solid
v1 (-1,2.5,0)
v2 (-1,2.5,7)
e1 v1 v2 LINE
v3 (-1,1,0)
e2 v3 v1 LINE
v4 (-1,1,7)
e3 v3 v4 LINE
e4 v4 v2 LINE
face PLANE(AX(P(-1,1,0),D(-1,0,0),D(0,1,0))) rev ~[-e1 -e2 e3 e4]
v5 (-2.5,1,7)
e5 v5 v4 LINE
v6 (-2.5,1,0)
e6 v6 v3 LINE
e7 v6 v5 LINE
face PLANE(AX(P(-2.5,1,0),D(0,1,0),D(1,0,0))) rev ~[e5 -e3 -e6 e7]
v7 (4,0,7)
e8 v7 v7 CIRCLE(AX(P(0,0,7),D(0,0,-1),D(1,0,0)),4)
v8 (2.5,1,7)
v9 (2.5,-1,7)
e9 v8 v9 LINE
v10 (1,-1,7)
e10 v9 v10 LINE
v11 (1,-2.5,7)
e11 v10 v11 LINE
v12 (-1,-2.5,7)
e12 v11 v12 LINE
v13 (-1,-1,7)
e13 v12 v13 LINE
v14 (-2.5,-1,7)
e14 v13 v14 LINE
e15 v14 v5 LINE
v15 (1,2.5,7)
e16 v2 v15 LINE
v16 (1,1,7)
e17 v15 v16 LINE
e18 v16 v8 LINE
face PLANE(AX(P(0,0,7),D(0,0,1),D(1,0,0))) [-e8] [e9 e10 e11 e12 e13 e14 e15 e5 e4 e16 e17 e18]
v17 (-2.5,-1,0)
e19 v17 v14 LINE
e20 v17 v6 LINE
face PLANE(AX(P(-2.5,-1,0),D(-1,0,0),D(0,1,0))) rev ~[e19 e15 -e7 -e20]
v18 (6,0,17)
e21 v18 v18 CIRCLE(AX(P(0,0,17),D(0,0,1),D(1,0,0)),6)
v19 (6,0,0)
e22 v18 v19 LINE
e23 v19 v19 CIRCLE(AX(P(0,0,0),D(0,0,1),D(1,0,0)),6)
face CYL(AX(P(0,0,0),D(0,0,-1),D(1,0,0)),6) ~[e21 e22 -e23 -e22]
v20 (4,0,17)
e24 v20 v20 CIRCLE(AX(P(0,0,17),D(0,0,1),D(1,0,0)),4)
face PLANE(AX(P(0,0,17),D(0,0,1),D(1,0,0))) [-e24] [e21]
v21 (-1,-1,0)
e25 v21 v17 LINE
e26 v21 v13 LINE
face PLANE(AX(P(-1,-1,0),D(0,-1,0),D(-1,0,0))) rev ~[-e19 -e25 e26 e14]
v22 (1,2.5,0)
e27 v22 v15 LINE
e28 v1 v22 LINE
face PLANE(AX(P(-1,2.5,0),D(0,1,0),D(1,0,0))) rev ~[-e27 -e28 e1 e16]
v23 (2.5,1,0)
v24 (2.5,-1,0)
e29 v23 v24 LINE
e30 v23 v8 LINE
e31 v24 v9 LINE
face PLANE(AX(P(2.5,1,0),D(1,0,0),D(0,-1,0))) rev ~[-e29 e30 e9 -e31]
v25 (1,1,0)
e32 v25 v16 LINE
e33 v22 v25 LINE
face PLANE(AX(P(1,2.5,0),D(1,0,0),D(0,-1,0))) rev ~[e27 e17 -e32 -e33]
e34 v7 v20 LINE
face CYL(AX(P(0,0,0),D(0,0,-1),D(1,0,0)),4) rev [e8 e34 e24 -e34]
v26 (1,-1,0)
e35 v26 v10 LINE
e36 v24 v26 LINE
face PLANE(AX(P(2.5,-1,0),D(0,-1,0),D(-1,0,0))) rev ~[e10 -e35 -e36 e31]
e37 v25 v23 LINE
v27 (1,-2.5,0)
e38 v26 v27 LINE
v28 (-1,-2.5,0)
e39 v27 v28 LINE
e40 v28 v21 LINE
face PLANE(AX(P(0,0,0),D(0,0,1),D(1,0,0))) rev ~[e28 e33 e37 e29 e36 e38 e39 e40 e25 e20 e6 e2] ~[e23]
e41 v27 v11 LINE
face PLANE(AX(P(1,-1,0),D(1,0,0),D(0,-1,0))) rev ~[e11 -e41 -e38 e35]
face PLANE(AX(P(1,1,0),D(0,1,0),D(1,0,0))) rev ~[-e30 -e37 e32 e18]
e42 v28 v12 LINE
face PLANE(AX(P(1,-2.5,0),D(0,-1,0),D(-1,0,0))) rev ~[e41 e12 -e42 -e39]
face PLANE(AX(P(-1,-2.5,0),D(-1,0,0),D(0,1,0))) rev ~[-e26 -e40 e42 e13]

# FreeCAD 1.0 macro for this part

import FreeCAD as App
import Part
import Sketcher
Q = App.Units.Quantity


def add_polygon(sketch, points):
    """Adds a closed chain of lines whose ends are joined by coincident constraints."""
    first, n = sketch.GeometryCount, len(points)
    for a, b in zip(points, points[1:] + points[:1]):
        sketch.addGeometry(Part.LineSegment(App.Vector(*a, 0), App.Vector(*b, 0)), False)
    for i in range(n):
        sketch.addConstraint(Sketcher.Constraint("Coincident", first + i, 2, first + (i + 1) % n, 1))

doc = App.newDocument("Part")
params = doc.addObject("Spreadsheet::Sheet", "Params")
for row, (alias, value) in enumerate([
    ("sketch1_diameter", "12 mm"),
    ("sketch1_width", "2 mm"),
    ("sketch1_width2", "1.5 mm"),
    ("pad1_length", "7 mm"),
    ("sketch2_diameter", "12 mm"),
    ("sketch2_diameter2", "8 mm"),
    ("pad2_length", "17 mm"),
], start=1):
    params.set(f"A{row}", alias)
    params.set(f"B{row}", "=" + value)
    params.setAlias(f"B{row}", alias)

body = doc.addObject("PartDesign::Body", "Body")

sketch1 = body.newObject("Sketcher::SketchObject", "Sketch")
sketch1.AttachmentSupport = (doc.getObject("XY_Plane"), [""])
sketch1.MapMode = "FlatFace"
sketch1.addGeometry(Part.Circle(App.Vector(0, 0, 0), App.Vector(0, 0, 1), 6), False)
add_polygon(sketch1, [(-1, 1), (-1, 2.5), (1, 2.5), (1, 1), (2.5, 1), (2.5, -1), (1, -1), (1, -2.5), (-1, -2.5), (-1, -1), (-2.5, -1), (-2.5, 1)])
sketch1.addConstraint(Sketcher.Constraint("Vertical", 1))
sketch1.addConstraint(Sketcher.Constraint("Horizontal", 2))
sketch1.addConstraint(Sketcher.Constraint("Vertical", 3))
sketch1.addConstraint(Sketcher.Constraint("Horizontal", 4))
sketch1.addConstraint(Sketcher.Constraint("Vertical", 5))
sketch1.addConstraint(Sketcher.Constraint("Horizontal", 6))
sketch1.addConstraint(Sketcher.Constraint("Vertical", 7))
sketch1.addConstraint(Sketcher.Constraint("Horizontal", 8))
sketch1.addConstraint(Sketcher.Constraint("Vertical", 9))
sketch1.addConstraint(Sketcher.Constraint("Horizontal", 10))
sketch1.addConstraint(Sketcher.Constraint("Vertical", 11))
sketch1.addConstraint(Sketcher.Constraint("Horizontal", 12))
sketch1.addConstraint(Sketcher.Constraint("Coincident", 0, 3, -1, 1))
sketch1.addConstraint(Sketcher.Constraint("Symmetric", 1, 2, 7, 2, -1, 1))
sketch1.addConstraint(Sketcher.Constraint("Symmetric", 3, 2, 9, 2, -1, 1))
sketch1.addConstraint(Sketcher.Constraint("Symmetric", 5, 2, 11, 2, -1, 1))
sketch1.addConstraint(Sketcher.Constraint("Symmetric", 6, 2, 9, 2, -2))
sketch1.addConstraint(Sketcher.Constraint("Equal", 12, 1))
sketch1.addConstraint(Sketcher.Constraint("Equal", 8, 5))
sketch1.addConstraint(Sketcher.Constraint("Diameter", 0, Q("12 mm")))
sketch1.addConstraint(Sketcher.Constraint("DistanceX", 2, 1, 2, 2, Q("2 mm")))
sketch1.addConstraint(Sketcher.Constraint("DistanceX", 4, 1, 4, 2, Q("1.5 mm")))
sketch1.setExpression("Constraints[31]", "Params.sketch1_diameter")
sketch1.setExpression("Constraints[32]", "Params.sketch1_width")
sketch1.setExpression("Constraints[33]", "Params.sketch1_width2")
pad1 = body.newObject("PartDesign::Pad", "Pad")
pad1.Profile = sketch1
pad1.setExpression("Length", "Params.pad1_length")

sketch2 = body.newObject("Sketcher::SketchObject", "Sketch001")
sketch2.AttachmentSupport = (doc.getObject("XY_Plane"), [""])
sketch2.MapMode = "FlatFace"
sketch2.addGeometry(Part.Circle(App.Vector(0, 0, 0), App.Vector(0, 0, 1), 6), False)
sketch2.addGeometry(Part.Circle(App.Vector(0, 0, 0), App.Vector(0, 0, 1), 4), False)
sketch2.addConstraint(Sketcher.Constraint("Coincident", 0, 3, -1, 1))
sketch2.addConstraint(Sketcher.Constraint("Coincident", 1, 3, -1, 1))
sketch2.addConstraint(Sketcher.Constraint("Diameter", 0, Q("12 mm")))
sketch2.addConstraint(Sketcher.Constraint("Diameter", 1, Q("8 mm")))
sketch2.setExpression("Constraints[2]", "Params.sketch2_diameter")
sketch2.setExpression("Constraints[3]", "Params.sketch2_diameter2")
pad2 = body.newObject("PartDesign::Pad", "Pad001")
pad2.Profile = sketch2
pad2.setExpression("Length", "Params.pad2_length")

doc.recompute()
